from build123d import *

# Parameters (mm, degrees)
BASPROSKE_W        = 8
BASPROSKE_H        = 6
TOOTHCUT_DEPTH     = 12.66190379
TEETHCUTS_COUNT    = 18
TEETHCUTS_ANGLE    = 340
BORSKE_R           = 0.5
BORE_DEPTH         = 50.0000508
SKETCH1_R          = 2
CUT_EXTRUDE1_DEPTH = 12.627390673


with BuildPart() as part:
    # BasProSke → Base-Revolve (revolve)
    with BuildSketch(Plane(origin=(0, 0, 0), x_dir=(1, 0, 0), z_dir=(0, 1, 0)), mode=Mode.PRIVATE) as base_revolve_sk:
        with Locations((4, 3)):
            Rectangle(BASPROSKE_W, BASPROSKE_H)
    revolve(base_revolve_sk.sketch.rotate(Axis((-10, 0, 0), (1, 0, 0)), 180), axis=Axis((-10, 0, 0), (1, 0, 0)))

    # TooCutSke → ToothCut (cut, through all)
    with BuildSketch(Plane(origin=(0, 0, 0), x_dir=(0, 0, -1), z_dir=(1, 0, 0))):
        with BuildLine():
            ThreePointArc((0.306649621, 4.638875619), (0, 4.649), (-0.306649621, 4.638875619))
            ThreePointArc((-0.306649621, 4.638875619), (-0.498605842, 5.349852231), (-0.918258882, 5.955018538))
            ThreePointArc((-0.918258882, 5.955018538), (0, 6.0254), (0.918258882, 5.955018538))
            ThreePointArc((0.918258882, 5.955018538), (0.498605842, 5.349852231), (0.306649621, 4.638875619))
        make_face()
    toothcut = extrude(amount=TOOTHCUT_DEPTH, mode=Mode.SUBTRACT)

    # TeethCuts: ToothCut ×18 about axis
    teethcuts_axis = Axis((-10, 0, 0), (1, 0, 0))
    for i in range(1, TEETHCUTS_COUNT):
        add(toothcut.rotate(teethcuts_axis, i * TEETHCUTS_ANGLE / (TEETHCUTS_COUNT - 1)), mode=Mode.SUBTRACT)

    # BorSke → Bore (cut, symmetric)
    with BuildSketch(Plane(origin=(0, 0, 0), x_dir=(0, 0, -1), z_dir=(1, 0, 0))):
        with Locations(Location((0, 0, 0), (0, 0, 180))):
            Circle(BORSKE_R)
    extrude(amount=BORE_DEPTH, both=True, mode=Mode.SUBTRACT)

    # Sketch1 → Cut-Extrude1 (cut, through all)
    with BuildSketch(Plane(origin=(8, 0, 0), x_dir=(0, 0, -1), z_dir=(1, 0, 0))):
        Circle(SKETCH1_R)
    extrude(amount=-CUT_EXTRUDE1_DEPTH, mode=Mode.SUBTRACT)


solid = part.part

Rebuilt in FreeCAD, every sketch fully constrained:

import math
import FreeCAD as App
import Part
import Sketcher
from FreeCAD import Vector
Q = App.Units.Quantity


def add_polygon(sketch, points):
    """Adds a closed chain of lines whose ends are joined by coincident constraints."""
    first, n = sketch.GeometryCount, len(points)
    for a, b in zip(points, points[1:] + points[:1]):
        sketch.addGeometry(Part.LineSegment(App.Vector(*a, 0), App.Vector(*b, 0)), False)
    for i in range(n):
        sketch.addConstraint(Sketcher.Constraint("Coincident", first + i, 2, first + (i + 1) % n, 1))

doc = App.newDocument("Part")
params = doc.addObject("Spreadsheet::Sheet", "Params")
for row, (alias, value) in enumerate([
    ("sketch1_width", "8 mm"),
    ("sketch1_height", "6 mm"),
    ("revolution_angle", "360 deg"),
    ("sketch2_radius", "2.16 mm"),
    ("sketch3_diameter", "1 mm"),
    ("pocket2_length", "100.000102 mm"),
    ("sketch4_diameter", "4 mm"),
], start=1):
    params.set(f"A{row}", alias)
    params.set(f"B{row}", "=" + value)
    params.setAlias(f"B{row}", alias)

body = doc.addObject("PartDesign::Body", "Body")

sketch1 = body.newObject("Sketcher::SketchObject", "Sketch")
sketch1.AttachmentSupport = (doc.getObject("XZ_Plane"), [""])
sketch1.MapMode = "FlatFace"
add_polygon(sketch1, [(0, -6), (0, 0), (8, 0), (8, -6)])
sketch1.addConstraint([
    Sketcher.Constraint("Vertical", 0),
    Sketcher.Constraint("Horizontal", 1),
    Sketcher.Constraint("Vertical", 2),
    Sketcher.Constraint("Horizontal", 3),
    Sketcher.Constraint("Coincident", 0, 2, -1, 1),
    Sketcher.Constraint("DistanceX", 1, 1, 1, 2, Q("8 mm")),
    Sketcher.Constraint("DistanceY", 0, 1, 0, 2, Q("6 mm")),
])
sketch1.setExpression("Constraints[9]", "Params.sketch1_width")
sketch1.setExpression("Constraints[10]", "Params.sketch1_height")
revolution = body.newObject("PartDesign::Revolution", "Revolution")
revolution.Profile = sketch1
revolution.ReferenceAxis = (sketch1, ["H_Axis"])
revolution.setExpression("Angle", "Params.revolution_angle")

sketch2 = body.newObject("Sketcher::SketchObject", "Sketch001")
sketch2.AttachmentSupport = (doc.getObject("YZ_Plane"), [""])
sketch2.MapMode = "FlatFace"
sketch2.addGeometry([
    Part.ArcOfCircle(Part.Circle(Vector(0, 0, 0), Vector(0, 0, 1), 4.6), math.radians(-3.78), math.radians(3.78)),
    Part.ArcOfCircle(Part.Circle(Vector(4.4, -2.5, 0), Vector(0, 0, 1), 2.2), math.radians(45), math.radians(85)),
    Part.ArcOfCircle(Part.Circle(Vector(0, 0, 0), Vector(0, 0, 1), 6), math.radians(-8.77), math.radians(8.77)),
    Part.ArcOfCircle(Part.Circle(Vector(4.4, 2.5, 0), Vector(0, 0, 1), 2.2), math.radians(-85), math.radians(-45)),
], False)
sketch2.addConstraint([
    Sketcher.Constraint("Coincident", 0, 1, 1, 2),
    Sketcher.Constraint("Coincident", 1, 1, 2, 1),
    Sketcher.Constraint("Coincident", 2, 2, 3, 2),
    Sketcher.Constraint("Coincident", 3, 1, 0, 2),
    Sketcher.Constraint("Coincident", 0, 3, -1, 1),
    Sketcher.Constraint("Coincident", 2, 3, -1, 1),
    Sketcher.Constraint("Equal", 1, 3),
    Sketcher.Constraint("Symmetric", 1, 3, 3, 3, -1),
    Sketcher.Constraint("Radius", 1, Q("2.16 mm")),
    Sketcher.Constraint("Radius", 0, Q("4.649 mm")),
    Sketcher.Constraint("Radius", 2, Q("6.0254 mm")),
    Sketcher.Constraint("DistanceY", 0, 1, 3, 1, Q("0.613299 mm")),
    Sketcher.Constraint("DistanceX", -1, 1, 1, 1, Q("5.955019 mm")),
])
sketch2.setExpression("Constraints[8]", "Params.sketch2_radius")
pocket1 = body.newObject("PartDesign::Pocket", "Pocket")
pocket1.Profile = sketch2
pocket1.Type = "ThroughAll"
pocket1.Reversed = True
doc.recompute()

polarpattern = body.newObject("PartDesign::PolarPattern", "PolarPattern")
polarpattern.Originals = [pocket1]
polarpattern.Axis = (doc.getObject("X_Axis"), [""])
polarpattern.Angle = 360
polarpattern.Occurrences = 18
body.Tip = polarpattern

sketch3 = body.newObject("Sketcher::SketchObject", "Sketch002")
sketch3.AttachmentSupport = (doc.getObject("YZ_Plane"), [""])
sketch3.MapMode = "FlatFace"
sketch3.addGeometry(Part.Circle(Vector(0, 0, 0), Vector(0, 0, 1), 0.5), False)
sketch3.addConstraint([
    Sketcher.Constraint("Coincident", 0, 3, -1, 1),
    Sketcher.Constraint("Diameter", 0, Q("1 mm")),
])
sketch3.setExpression("Constraints[1]", "Params.sketch3_diameter")
pocket2 = body.newObject("PartDesign::Pocket", "Pocket001")
pocket2.Profile = sketch3
pocket2.setExpression("Length", "Params.pocket2_length")
pocket2.Midplane = True

sketch4 = body.newObject("Sketcher::SketchObject", "Sketch003")
sketch4.AttachmentSupport = (doc.getObject("YZ_Plane"), [""])
sketch4.MapMode = "FlatFace"
sketch4.AttachmentOffset = App.Placement(Vector(0, 0, 8), App.Rotation())
sketch4.addGeometry(Part.Circle(Vector(0, 0, 0), Vector(0, 0, 1), 2), False)
sketch4.addConstraint([
    Sketcher.Constraint("Coincident", 0, 3, -1, 1),
    Sketcher.Constraint("Diameter", 0, Q("4 mm")),
])
sketch4.setExpression("Constraints[1]", "Params.sketch4_diameter")
pocket3 = body.newObject("PartDesign::Pocket", "Pocket002")
pocket3.Profile = sketch4
pocket3.Type = "ThroughAll"

doc.recompute()
